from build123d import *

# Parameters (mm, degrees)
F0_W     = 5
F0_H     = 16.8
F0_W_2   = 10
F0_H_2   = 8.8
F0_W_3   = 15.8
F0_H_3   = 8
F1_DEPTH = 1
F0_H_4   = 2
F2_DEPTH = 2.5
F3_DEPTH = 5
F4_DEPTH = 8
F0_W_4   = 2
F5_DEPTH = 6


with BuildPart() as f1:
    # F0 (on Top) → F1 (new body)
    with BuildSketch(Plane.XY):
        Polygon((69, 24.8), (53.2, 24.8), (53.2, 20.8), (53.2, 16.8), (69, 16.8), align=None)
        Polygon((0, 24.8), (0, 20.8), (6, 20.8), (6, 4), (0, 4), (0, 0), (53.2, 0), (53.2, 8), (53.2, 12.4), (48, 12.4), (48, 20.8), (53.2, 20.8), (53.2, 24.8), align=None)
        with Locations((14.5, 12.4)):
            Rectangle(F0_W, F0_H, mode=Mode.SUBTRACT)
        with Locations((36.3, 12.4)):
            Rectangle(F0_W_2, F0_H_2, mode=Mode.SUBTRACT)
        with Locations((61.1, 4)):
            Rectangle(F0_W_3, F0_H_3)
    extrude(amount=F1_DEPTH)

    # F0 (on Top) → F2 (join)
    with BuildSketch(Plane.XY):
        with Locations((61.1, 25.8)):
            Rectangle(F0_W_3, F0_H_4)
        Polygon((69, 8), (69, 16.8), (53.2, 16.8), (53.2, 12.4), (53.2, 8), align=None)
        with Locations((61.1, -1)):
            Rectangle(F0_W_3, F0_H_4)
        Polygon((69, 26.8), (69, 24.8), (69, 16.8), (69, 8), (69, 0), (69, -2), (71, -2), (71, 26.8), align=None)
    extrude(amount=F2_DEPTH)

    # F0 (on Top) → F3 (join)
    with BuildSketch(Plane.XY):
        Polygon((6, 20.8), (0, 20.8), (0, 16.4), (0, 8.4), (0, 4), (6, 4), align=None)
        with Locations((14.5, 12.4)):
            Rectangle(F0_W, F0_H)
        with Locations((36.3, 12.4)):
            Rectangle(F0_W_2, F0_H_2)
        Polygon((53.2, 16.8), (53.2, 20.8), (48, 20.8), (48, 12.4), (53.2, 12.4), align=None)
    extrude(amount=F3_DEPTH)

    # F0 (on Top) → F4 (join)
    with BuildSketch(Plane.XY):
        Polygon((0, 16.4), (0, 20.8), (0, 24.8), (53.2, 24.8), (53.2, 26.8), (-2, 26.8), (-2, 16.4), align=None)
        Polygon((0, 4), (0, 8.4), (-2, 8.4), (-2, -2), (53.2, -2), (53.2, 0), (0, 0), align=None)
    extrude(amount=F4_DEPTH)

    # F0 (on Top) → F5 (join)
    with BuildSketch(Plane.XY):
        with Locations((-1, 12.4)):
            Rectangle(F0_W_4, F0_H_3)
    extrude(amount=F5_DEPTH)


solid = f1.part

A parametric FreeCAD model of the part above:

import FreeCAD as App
import Part
import Sketcher
from FreeCAD import Vector
Q = App.Units.Quantity

doc = App.newDocument("Part")
body = doc.addObject("PartDesign::Body", "Body")

# Sketch on XY plane
sketch1 = doc.addObject("Sketcher::SketchObject", "Sketch")
body.addObject(sketch1)
sketch1.AttachmentSupport = (doc.XY_Plane, [""])
sketch1.MapMode = "FlatFace"
sketch1.addGeometry(Part.LineSegment(Vector(69, 24.8, 0), Vector(0, 24.8, 0)), False)
sketch1.addGeometry(Part.LineSegment(Vector(0, 24.8, 0), Vector(0, 20.8, 0)), False)
sketch1.addGeometry(Part.LineSegment(Vector(0, 20.8, 0), Vector(6, 20.8, 0)), False)
sketch1.addGeometry(Part.LineSegment(Vector(6, 20.8, 0), Vector(6, 4, 0)), False)
sketch1.addGeometry(Part.LineSegment(Vector(6, 4, 0), Vector(0, 4, 0)), False)
sketch1.addGeometry(Part.LineSegment(Vector(0, 4, 0), Vector(0, 0, 0)), False)
sketch1.addGeometry(Part.LineSegment(Vector(0, 0, 0), Vector(69, 0, 0)), False)
sketch1.addGeometry(Part.LineSegment(Vector(69, 0, 0), Vector(69, 8, 0)), False)
sketch1.addGeometry(Part.LineSegment(Vector(69, 8, 0), Vector(53.2, 8, 0)), False)
sketch1.addGeometry(Part.LineSegment(Vector(53.2, 8, 0), Vector(53.2, 12.4, 0)), False)
sketch1.addGeometry(Part.LineSegment(Vector(53.2, 12.4, 0), Vector(48, 12.4, 0)), False)
sketch1.addGeometry(Part.LineSegment(Vector(48, 12.4, 0), Vector(48, 20.8, 0)), False)
sketch1.addGeometry(Part.LineSegment(Vector(48, 20.8, 0), Vector(53.2, 20.8, 0)), False)
sketch1.addGeometry(Part.LineSegment(Vector(53.2, 20.8, 0), Vector(53.2, 16.8, 0)), False)
sketch1.addGeometry(Part.LineSegment(Vector(53.2, 16.8, 0), Vector(69, 16.8, 0)), False)
sketch1.addGeometry(Part.LineSegment(Vector(69, 16.8, 0), Vector(69, 24.8, 0)), False)
sketch1.addGeometry(Part.LineSegment(Vector(17, 4, 0), Vector(12, 4, 0)), False)
sketch1.addGeometry(Part.LineSegment(Vector(12, 4, 0), Vector(12, 20.8, 0)), False)
sketch1.addGeometry(Part.LineSegment(Vector(12, 20.8, 0), Vector(17, 20.8, 0)), False)
sketch1.addGeometry(Part.LineSegment(Vector(17, 20.8, 0), Vector(17, 4, 0)), False)
sketch1.addGeometry(Part.LineSegment(Vector(41.3, 8, 0), Vector(31.3, 8, 0)), False)
sketch1.addGeometry(Part.LineSegment(Vector(31.3, 8, 0), Vector(31.3, 16.8, 0)), False)
sketch1.addGeometry(Part.LineSegment(Vector(31.3, 16.8, 0), Vector(41.3, 16.8, 0)), False)
sketch1.addGeometry(Part.LineSegment(Vector(41.3, 16.8, 0), Vector(41.3, 8, 0)), False)
sketch1.addConstraint(Sketcher.Constraint("Coincident", 0, 2, 1, 1))
sketch1.addConstraint(Sketcher.Constraint("Coincident", 1, 2, 2, 1))
sketch1.addConstraint(Sketcher.Constraint("Coincident", 2, 2, 3, 1))
sketch1.addConstraint(Sketcher.Constraint("Coincident", 3, 2, 4, 1))
sketch1.addConstraint(Sketcher.Constraint("Coincident", 4, 2, 5, 1))
sketch1.addConstraint(Sketcher.Constraint("Coincident", 5, 2, 6, 1))
sketch1.addConstraint(Sketcher.Constraint("Coincident", 6, 2, 7, 1))
sketch1.addConstraint(Sketcher.Constraint("Coincident", 7, 2, 8, 1))
sketch1.addConstraint(Sketcher.Constraint("Coincident", 8, 2, 9, 1))
sketch1.addConstraint(Sketcher.Constraint("Coincident", 9, 2, 10, 1))
sketch1.addConstraint(Sketcher.Constraint("Coincident", 10, 2, 11, 1))
sketch1.addConstraint(Sketcher.Constraint("Coincident", 11, 2, 12, 1))
sketch1.addConstraint(Sketcher.Constraint("Coincident", 12, 2, 13, 1))
sketch1.addConstraint(Sketcher.Constraint("Coincident", 13, 2, 14, 1))
sketch1.addConstraint(Sketcher.Constraint("Coincident", 14, 2, 15, 1))
sketch1.addConstraint(Sketcher.Constraint("Coincident", 15, 2, 0, 1))
sketch1.addConstraint(Sketcher.Constraint("Coincident", 16, 2, 17, 1))
sketch1.addConstraint(Sketcher.Constraint("Coincident", 17, 2, 18, 1))
sketch1.addConstraint(Sketcher.Constraint("Coincident", 18, 2, 19, 1))
sketch1.addConstraint(Sketcher.Constraint("Coincident", 19, 2, 16, 1))
sketch1.addConstraint(Sketcher.Constraint("Coincident", 20, 2, 21, 1))
sketch1.addConstraint(Sketcher.Constraint("Coincident", 21, 2, 22, 1))
sketch1.addConstraint(Sketcher.Constraint("Coincident", 22, 2, 23, 1))
sketch1.addConstraint(Sketcher.Constraint("Coincident", 23, 2, 20, 1))
sketch1.addConstraint(Sketcher.Constraint("Horizontal", 0))
sketch1.addConstraint(Sketcher.Constraint("Vertical", 1))
sketch1.addConstraint(Sketcher.Constraint("Horizontal", 2))
sketch1.addConstraint(Sketcher.Constraint("Vertical", 3))
sketch1.addConstraint(Sketcher.Constraint("Horizontal", 4))
sketch1.addConstraint(Sketcher.Constraint("Vertical", 5))
sketch1.addConstraint(Sketcher.Constraint("Horizontal", 6))
sketch1.addConstraint(Sketcher.Constraint("Vertical", 7))
sketch1.addConstraint(Sketcher.Constraint("Horizontal", 8))
sketch1.addConstraint(Sketcher.Constraint("Vertical", 9))
sketch1.addConstraint(Sketcher.Constraint("Horizontal", 10))
sketch1.addConstraint(Sketcher.Constraint("Vertical", 11))
sketch1.addConstraint(Sketcher.Constraint("Horizontal", 12))
sketch1.addConstraint(Sketcher.Constraint("Vertical", 13))
sketch1.addConstraint(Sketcher.Constraint("Horizontal", 14))
sketch1.addConstraint(Sketcher.Constraint("Vertical", 15))
sketch1.addConstraint(Sketcher.Constraint("Horizontal", 16))
sketch1.addConstraint(Sketcher.Constraint("Vertical", 17))
sketch1.addConstraint(Sketcher.Constraint("Horizontal", 18))
sketch1.addConstraint(Sketcher.Constraint("Vertical", 19))
sketch1.addConstraint(Sketcher.Constraint("Horizontal", 20))
sketch1.addConstraint(Sketcher.Constraint("Vertical", 21))
sketch1.addConstraint(Sketcher.Constraint("Horizontal", 22))
sketch1.addConstraint(Sketcher.Constraint("Vertical", 23))
sketch1.addConstraint(Sketcher.Constraint("Coincident", 5, 2, -1, 1))
sketch1.addConstraint(Sketcher.Constraint("PointOnObject", 0, 2, -2))
sketch1.addConstraint(Sketcher.Constraint("Horizontal", 2, 2, 11, 2))
sketch1.addConstraint(Sketcher.Constraint("Horizontal", 4, 2, 16, 2))
sketch1.addConstraint(Sketcher.Constraint("Horizontal", 12, 2, 17, 2))
sketch1.addConstraint(Sketcher.Constraint("Horizontal", 8, 2, 20, 2))
sketch1.addConstraint(Sketcher.Constraint("Horizontal", 14, 2, 21, 2))
sketch1.addConstraint(Sketcher.Constraint("Vertical", 9, 2, 12, 2))
sketch1.addConstraint(Sketcher.Constraint("Vertical", 7, 2, 14, 2))
sketch1.addConstraint(Sketcher.Constraint("Equal", 1, 5))
sketch1.addConstraint(Sketcher.Constraint("Equal", 5, 13))
sketch1.addConstraint(Sketcher.Constraint("Equal", 7, 15))
sketch1.addConstraint(Sketcher.Constraint("DistanceX", 0, 2, 0, 1, Q("69 mm")))
sketch1.addConstraint(Sketcher.Constraint("DistanceX", 2, 1, 2, 2, Q("6 mm")))
sketch1.addConstraint(Sketcher.Constraint("DistanceX", 16, 2, 16, 1, Q("5 mm")))
sketch1.addConstraint(Sketcher.Constraint("DistanceX", 20, 2, 20, 1, Q("10 mm")))
sketch1.addConstraint(Sketcher.Constraint("DistanceY", 1, 2, 1, 1, Q("4 mm")))
sketch1.addConstraint(Sketcher.Constraint("DistanceX", 8, 2, 8, 1, Q("15.8 mm")))
sketch1.addConstraint(Sketcher.Constraint("DistanceX", 10, 2, 10, 1, Q("5.2 mm")))
sketch1.addConstraint(Sketcher.Constraint("DistanceY", 3, 2, 3, 1, Q("16.8 mm")))
sketch1.addConstraint(Sketcher.Constraint("DistanceY", 9, 1, 9, 2, Q("4.4 mm")))
sketch1.addConstraint(Sketcher.Constraint("DistanceX", -1, 1, 16, 2, Q("12 mm")))
sketch1.addConstraint(Sketcher.Constraint("DistanceX", -1, 1, 20, 2, Q("31.3 mm")))
pad1 = doc.addObject("PartDesign::Pad", "Pad")
body.addObject(pad1)
pad1.Profile = sketch1
pad1.Length = 1

# Sketch on XY plane
sketch2 = doc.addObject("Sketcher::SketchObject", "Sketch001")
body.addObject(sketch2)
sketch2.AttachmentSupport = (doc.XY_Plane, [""])
sketch2.MapMode = "FlatFace"
sketch2.addGeometry(Part.LineSegment(Vector(53.2, 26.8, 0), Vector(53.2, 24.8, 0)), False)
sketch2.addGeometry(Part.LineSegment(Vector(53.2, 24.8, 0), Vector(69, 24.8, 0)), False)
sketch2.addGeometry(Part.LineSegment(Vector(69, 24.8, 0), Vector(69, 16.8, 0)), False)
sketch2.addGeometry(Part.LineSegment(Vector(69, 16.8, 0), Vector(53.2, 16.8, 0)), False)
sketch2.addGeometry(Part.LineSegment(Vector(53.2, 16.8, 0), Vector(53.2, 8, 0)), False)
sketch2.addGeometry(Part.LineSegment(Vector(53.2, 8, 0), Vector(69, 8, 0)), False)
sketch2.addGeometry(Part.LineSegment(Vector(69, 8, 0), Vector(69, 0, 0)), False)
sketch2.addGeometry(Part.LineSegment(Vector(69, 0, 0), Vector(53.2, 0, 0)), False)
sketch2.addGeometry(Part.LineSegment(Vector(53.2, 0, 0), Vector(53.2, -2, 0)), False)
sketch2.addGeometry(Part.LineSegment(Vector(53.2, -2, 0), Vector(71, -2, 0)), False)
sketch2.addGeometry(Part.LineSegment(Vector(71, -2, 0), Vector(71, 26.8, 0)), False)
sketch2.addGeometry(Part.LineSegment(Vector(71, 26.8, 0), Vector(53.2, 26.8, 0)), False)
sketch2.addConstraint(Sketcher.Constraint("Coincident", 0, 2, 1, 1))
sketch2.addConstraint(Sketcher.Constraint("Coincident", 1, 2, 2, 1))
sketch2.addConstraint(Sketcher.Constraint("Coincident", 2, 2, 3, 1))
sketch2.addConstraint(Sketcher.Constraint("Coincident", 3, 2, 4, 1))
sketch2.addConstraint(Sketcher.Constraint("Coincident", 4, 2, 5, 1))
sketch2.addConstraint(Sketcher.Constraint("Coincident", 5, 2, 6, 1))
sketch2.addConstraint(Sketcher.Constraint("Coincident", 6, 2, 7, 1))
sketch2.addConstraint(Sketcher.Constraint("Coincident", 7, 2, 8, 1))
sketch2.addConstraint(Sketcher.Constraint("Coincident", 8, 2, 9, 1))
sketch2.addConstraint(Sketcher.Constraint("Coincident", 9, 2, 10, 1))
sketch2.addConstraint(Sketcher.Constraint("Coincident", 10, 2, 11, 1))
sketch2.addConstraint(Sketcher.Constraint("Coincident", 11, 2, 0, 1))
sketch2.addConstraint(Sketcher.Constraint("Vertical", 0))
sketch2.addConstraint(Sketcher.Constraint("Horizontal", 1))
sketch2.addConstraint(Sketcher.Constraint("Vertical", 2))
sketch2.addConstraint(Sketcher.Constraint("Horizontal", 3))
sketch2.addConstraint(Sketcher.Constraint("Vertical", 4))
sketch2.addConstraint(Sketcher.Constraint("Horizontal", 5))
sketch2.addConstraint(Sketcher.Constraint("Vertical", 6))
sketch2.addConstraint(Sketcher.Constraint("Horizontal", 7))
sketch2.addConstraint(Sketcher.Constraint("Vertical", 8))
sketch2.addConstraint(Sketcher.Constraint("Horizontal", 9))
sketch2.addConstraint(Sketcher.Constraint("Vertical", 10))
sketch2.addConstraint(Sketcher.Constraint("Horizontal", 11))
sketch2.addConstraint(Sketcher.Constraint("PointOnObject", 6, 2, -1))
sketch2.addConstraint(Sketcher.Constraint("Vertical", 0, 2, 3, 2))
sketch2.addConstraint(Sketcher.Constraint("Vertical", 2, 2, 5, 2))
sketch2.addConstraint(Sketcher.Constraint("Vertical", 4, 2, 7, 2))
sketch2.addConstraint(Sketcher.Constraint("Equal", 2, 6))
sketch2.addConstraint(Sketcher.Constraint("Equal", 0, 8))
sketch2.addConstraint(Sketcher.Constraint("DistanceY", 0, 2, 0, 1, Q("2 mm")))
sketch2.addConstraint(Sketcher.Constraint("DistanceY", 2, 2, 2, 1, Q("8 mm")))
sketch2.addConstraint(Sketcher.Constraint("DistanceX", 1, 1, 1, 2, Q("15.8 mm")))
sketch2.addConstraint(Sketcher.Constraint("DistanceX", 9, 1, 9, 2, Q("17.8 mm")))
sketch2.addConstraint(Sketcher.Constraint("DistanceY", 4, 2, 4, 1, Q("8.8 mm")))
sketch2.addConstraint(Sketcher.Constraint("DistanceX", -1, 1, 1, 2, Q("69 mm")))
pad2 = doc.addObject("PartDesign::Pad", "Pad001")
body.addObject(pad2)
pad2.Profile = sketch2
pad2.Length = 2.5

# Sketch on XY plane
sketch3 = doc.addObject("Sketcher::SketchObject", "Sketch002")
body.addObject(sketch3)
sketch3.AttachmentSupport = (doc.XY_Plane, [""])
sketch3.MapMode = "FlatFace"
sketch3.addGeometry(Part.LineSegment(Vector(6, 20.8, 0), Vector(0, 20.8, 0)), False)
sketch3.addGeometry(Part.LineSegment(Vector(0, 20.8, 0), Vector(0, 4, 0)), False)
sketch3.addGeometry(Part.LineSegment(Vector(0, 4, 0), Vector(6, 4, 0)), False)
sketch3.addGeometry(Part.LineSegment(Vector(6, 4, 0), Vector(6, 20.8, 0)), False)
sketch3.addGeometry(Part.LineSegment(Vector(12, 20.8, 0), Vector(12, 4, 0)), False)
sketch3.addGeometry(Part.LineSegment(Vector(12, 4, 0), Vector(17, 4, 0)), False)
sketch3.addGeometry(Part.LineSegment(Vector(17, 4, 0), Vector(17, 20.8, 0)), False)
sketch3.addGeometry(Part.LineSegment(Vector(17, 20.8, 0), Vector(12, 20.8, 0)), False)
sketch3.addGeometry(Part.LineSegment(Vector(31.3, 16.8, 0), Vector(31.3, 8, 0)), False)
sketch3.addGeometry(Part.LineSegment(Vector(31.3, 8, 0), Vector(41.3, 8, 0)), False)
sketch3.addGeometry(Part.LineSegment(Vector(41.3, 8, 0), Vector(41.3, 16.8, 0)), False)
sketch3.addGeometry(Part.LineSegment(Vector(41.3, 16.8, 0), Vector(31.3, 16.8, 0)), False)
sketch3.addGeometry(Part.LineSegment(Vector(53.2, 20.8, 0), Vector(48, 20.8, 0)), False)
sketch3.addGeometry(Part.LineSegment(Vector(48, 20.8, 0), Vector(48, 12.4, 0)), False)
sketch3.addGeometry(Part.LineSegment(Vector(48, 12.4, 0), Vector(53.2, 12.4, 0)), False)
sketch3.addGeometry(Part.LineSegment(Vector(53.2, 12.4, 0), Vector(53.2, 20.8, 0)), False)
sketch3.addConstraint(Sketcher.Constraint("Coincident", 0, 2, 1, 1))
sketch3.addConstraint(Sketcher.Constraint("Coincident", 1, 2, 2, 1))
sketch3.addConstraint(Sketcher.Constraint("Coincident", 2, 2, 3, 1))
sketch3.addConstraint(Sketcher.Constraint("Coincident", 3, 2, 0, 1))
sketch3.addConstraint(Sketcher.Constraint("Coincident", 4, 2, 5, 1))
sketch3.addConstraint(Sketcher.Constraint("Coincident", 5, 2, 6, 1))
sketch3.addConstraint(Sketcher.Constraint("Coincident", 6, 2, 7, 1))
sketch3.addConstraint(Sketcher.Constraint("Coincident", 7, 2, 4, 1))
sketch3.addConstraint(Sketcher.Constraint("Coincident", 8, 2, 9, 1))
sketch3.addConstraint(Sketcher.Constraint("Coincident", 9, 2, 10, 1))
sketch3.addConstraint(Sketcher.Constraint("Coincident", 10, 2, 11, 1))
sketch3.addConstraint(Sketcher.Constraint("Coincident", 11, 2, 8, 1))
sketch3.addConstraint(Sketcher.Constraint("Coincident", 12, 2, 13, 1))
sketch3.addConstraint(Sketcher.Constraint("Coincident", 13, 2, 14, 1))
sketch3.addConstraint(Sketcher.Constraint("Coincident", 14, 2, 15, 1))
sketch3.addConstraint(Sketcher.Constraint("Coincident", 15, 2, 12, 1))
sketch3.addConstraint(Sketcher.Constraint("Horizontal", 0))
sketch3.addConstraint(Sketcher.Constraint("Vertical", 1))
sketch3.addConstraint(Sketcher.Constraint("Horizontal", 2))
sketch3.addConstraint(Sketcher.Constraint("Vertical", 3))
sketch3.addConstraint(Sketcher.Constraint("Vertical", 4))
sketch3.addConstraint(Sketcher.Constraint("Horizontal", 5))
sketch3.addConstraint(Sketcher.Constraint("Vertical", 6))
sketch3.addConstraint(Sketcher.Constraint("Horizontal", 7))
sketch3.addConstraint(Sketcher.Constraint("Vertical", 8))
sketch3.addConstraint(Sketcher.Constraint("Horizontal", 9))
sketch3.addConstraint(Sketcher.Constraint("Vertical", 10))
sketch3.addConstraint(Sketcher.Constraint("Horizontal", 11))
sketch3.addConstraint(Sketcher.Constraint("Horizontal", 12))
sketch3.addConstraint(Sketcher.Constraint("Vertical", 13))
sketch3.addConstraint(Sketcher.Constraint("Horizontal", 14))
sketch3.addConstraint(Sketcher.Constraint("Vertical", 15))
sketch3.addConstraint(Sketcher.Constraint("PointOnObject", 0, 2, -2))
sketch3.addConstraint(Sketcher.Constraint("Horizontal", 2, 2, 4, 2))
sketch3.addConstraint(Sketcher.Constraint("Horizontal", 3, 2, 6, 2))
sketch3.addConstraint(Sketcher.Constraint("Horizontal", 7, 2, 12, 2))
sketch3.addConstraint(Sketcher.Constraint("DistanceX", 0, 2, 0, 1, Q("6 mm")))
sketch3.addConstraint(Sketcher.Constraint("DistanceX", 5, 1, 5, 2, Q("5 mm")))
sketch3.addConstraint(Sketcher.Constraint("DistanceX", 9, 1, 9, 2, Q("10 mm")))
sketch3.addConstraint(Sketcher.Constraint("DistanceX", 12, 2, 12, 1, Q("5.2 mm")))
sketch3.addConstraint(Sketcher.Constraint("DistanceY", 1, 2, 1, 1, Q("16.8 mm")))
sketch3.addConstraint(Sketcher.Constraint("DistanceY", 8, 2, 8, 1, Q("8.8 mm")))
sketch3.addConstraint(Sketcher.Constraint("DistanceY", 13, 2, 13, 1, Q("8.4 mm")))
sketch3.addConstraint(Sketcher.Constraint("DistanceY", -1, 1, 1, 2, Q("4 mm")))
sketch3.addConstraint(Sketcher.Constraint("DistanceX", -1, 1, 4, 2, Q("12 mm")))
sketch3.addConstraint(Sketcher.Constraint("DistanceY", -1, 1, 8, 2, Q("8 mm")))
sketch3.addConstraint(Sketcher.Constraint("DistanceX", -1, 1, 12, 2, Q("48 mm")))
sketch3.addConstraint(Sketcher.Constraint("DistanceX", -1, 1, 8, 2, Q("31.3 mm")))
pad3 = doc.addObject("PartDesign::Pad", "Pad002")
body.addObject(pad3)
pad3.Profile = sketch3
pad3.Length = 5

# Sketch on XY plane
sketch4 = doc.addObject("Sketcher::SketchObject", "Sketch003")
body.addObject(sketch4)
sketch4.AttachmentSupport = (doc.XY_Plane, [""])
sketch4.MapMode = "FlatFace"
sketch4.addGeometry(Part.LineSegment(Vector(0, 16.4, 0), Vector(0, 24.8, 0)), False)
sketch4.addGeometry(Part.LineSegment(Vector(0, 24.8, 0), Vector(53.2, 24.8, 0)), False)
sketch4.addGeometry(Part.LineSegment(Vector(53.2, 24.8, 0), Vector(53.2, 26.8, 0)), False)
sketch4.addGeometry(Part.LineSegment(Vector(53.2, 26.8, 0), Vector(-2, 26.8, 0)), False)
sketch4.addGeometry(Part.LineSegment(Vector(-2, 26.8, 0), Vector(-2, 16.4, 0)), False)
sketch4.addGeometry(Part.LineSegment(Vector(-2, 16.4, 0), Vector(0, 16.4, 0)), False)
sketch4.addGeometry(Part.LineSegment(Vector(0, 8.4, 0), Vector(-2, 8.4, 0)), False)
sketch4.addGeometry(Part.LineSegment(Vector(-2, 8.4, 0), Vector(-2, -2, 0)), False)
sketch4.addGeometry(Part.LineSegment(Vector(-2, -2, 0), Vector(53.2, -2, 0)), False)
sketch4.addGeometry(Part.LineSegment(Vector(53.2, -2, 0), Vector(53.2, 0, 0)), False)
sketch4.addGeometry(Part.LineSegment(Vector(53.2, 0, 0), Vector(0, 0, 0)), False)
sketch4.addGeometry(Part.LineSegment(Vector(0, 0, 0), Vector(0, 8.4, 0)), False)
sketch4.addConstraint(Sketcher.Constraint("Coincident", 0, 2, 1, 1))
sketch4.addConstraint(Sketcher.Constraint("Coincident", 1, 2, 2, 1))
sketch4.addConstraint(Sketcher.Constraint("Coincident", 2, 2, 3, 1))
sketch4.addConstraint(Sketcher.Constraint("Coincident", 3, 2, 4, 1))
sketch4.addConstraint(Sketcher.Constraint("Coincident", 4, 2, 5, 1))
sketch4.addConstraint(Sketcher.Constraint("Coincident", 5, 2, 0, 1))
sketch4.addConstraint(Sketcher.Constraint("Coincident", 6, 2, 7, 1))
sketch4.addConstraint(Sketcher.Constraint("Coincident", 7, 2, 8, 1))
sketch4.addConstraint(Sketcher.Constraint("Coincident", 8, 2, 9, 1))
sketch4.addConstraint(Sketcher.Constraint("Coincident", 9, 2, 10, 1))
sketch4.addConstraint(Sketcher.Constraint("Coincident", 10, 2, 11, 1))
sketch4.addConstraint(Sketcher.Constraint("Coincident", 11, 2, 6, 1))
sketch4.addConstraint(Sketcher.Constraint("Vertical", 0))
sketch4.addConstraint(Sketcher.Constraint("Horizontal", 1))
sketch4.addConstraint(Sketcher.Constraint("Vertical", 2))
sketch4.addConstraint(Sketcher.Constraint("Horizontal", 3))
sketch4.addConstraint(Sketcher.Constraint("Vertical", 4))
sketch4.addConstraint(Sketcher.Constraint("Horizontal", 5))
sketch4.addConstraint(Sketcher.Constraint("Horizontal", 6))
sketch4.addConstraint(Sketcher.Constraint("Vertical", 7))
sketch4.addConstraint(Sketcher.Constraint("Horizontal", 8))
sketch4.addConstraint(Sketcher.Constraint("Vertical", 9))
sketch4.addConstraint(Sketcher.Constraint("Horizontal", 10))
sketch4.addConstraint(Sketcher.Constraint("Vertical", 11))
sketch4.addConstraint(Sketcher.Constraint("Coincident", 10, 2, -1, 1))
sketch4.addConstraint(Sketcher.Constraint("PointOnObject", 0, 2, -2))
sketch4.addConstraint(Sketcher.Constraint("Vertical", 4, 2, 6, 2))
sketch4.addConstraint(Sketcher.Constraint("Vertical", 2, 2, 8, 2))
sketch4.addConstraint(Sketcher.Constraint("Equal", 6, 2))
sketch4.addConstraint(Sketcher.Constraint("Equal", 4, 7))
sketch4.addConstraint(Sketcher.Constraint("Equal", 2, 9))
sketch4.addConstraint(Sketcher.Constraint("DistanceX", 5, 1, 5, 2, Q("2 mm")))
sketch4.addConstraint(Sketcher.Constraint("DistanceX", 1, 1, 1, 2, Q("53.2 mm")))
sketch4.addConstraint(Sketcher.Constraint("DistanceY", 0, 1, 0, 2, Q("8.4 mm")))
sketch4.addConstraint(Sketcher.Constraint("DistanceY", 6, 2, 4, 2, Q("8 mm")))
pad4 = doc.addObject("PartDesign::Pad", "Pad003")
body.addObject(pad4)
pad4.Profile = sketch4
pad4.Length = 8

# Sketch on XY plane
sketch5 = doc.addObject("Sketcher::SketchObject", "Sketch004")
body.addObject(sketch5)
sketch5.AttachmentSupport = (doc.XY_Plane, [""])
sketch5.MapMode = "FlatFace"
sketch5.addGeometry(Part.LineSegment(Vector(-2, 16.4, 0), Vector(-2, 8.4, 0)), False)
sketch5.addGeometry(Part.LineSegment(Vector(-2, 8.4, 0), Vector(0, 8.4, 0)), False)
sketch5.addGeometry(Part.LineSegment(Vector(0, 8.4, 0), Vector(0, 16.4, 0)), False)
sketch5.addGeometry(Part.LineSegment(Vector(0, 16.4, 0), Vector(-2, 16.4, 0)), False)
sketch5.addConstraint(Sketcher.Constraint("Coincident", 0, 2, 1, 1))
sketch5.addConstraint(Sketcher.Constraint("Coincident", 1, 2, 2, 1))
sketch5.addConstraint(Sketcher.Constraint("Coincident", 2, 2, 3, 1))
sketch5.addConstraint(Sketcher.Constraint("Coincident", 3, 2, 0, 1))
sketch5.addConstraint(Sketcher.Constraint("Vertical", 0))
sketch5.addConstraint(Sketcher.Constraint("Horizontal", 1))
sketch5.addConstraint(Sketcher.Constraint("Vertical", 2))
sketch5.addConstraint(Sketcher.Constraint("Horizontal", 3))
sketch5.addConstraint(Sketcher.Constraint("PointOnObject", 1, 2, -2))
sketch5.addConstraint(Sketcher.Constraint("DistanceX", 1, 1, 1, 2, Q("2 mm")))
sketch5.addConstraint(Sketcher.Constraint("DistanceY", 0, 2, 0, 1, Q("8 mm")))
sketch5.addConstraint(Sketcher.Constraint("DistanceY", -1, 1, 0, 2, Q("8.4 mm")))
pad5 = doc.addObject("PartDesign::Pad", "Pad004")
body.addObject(pad5)
pad5.Profile = sketch5
pad5.Length = 6

doc.recompute()
